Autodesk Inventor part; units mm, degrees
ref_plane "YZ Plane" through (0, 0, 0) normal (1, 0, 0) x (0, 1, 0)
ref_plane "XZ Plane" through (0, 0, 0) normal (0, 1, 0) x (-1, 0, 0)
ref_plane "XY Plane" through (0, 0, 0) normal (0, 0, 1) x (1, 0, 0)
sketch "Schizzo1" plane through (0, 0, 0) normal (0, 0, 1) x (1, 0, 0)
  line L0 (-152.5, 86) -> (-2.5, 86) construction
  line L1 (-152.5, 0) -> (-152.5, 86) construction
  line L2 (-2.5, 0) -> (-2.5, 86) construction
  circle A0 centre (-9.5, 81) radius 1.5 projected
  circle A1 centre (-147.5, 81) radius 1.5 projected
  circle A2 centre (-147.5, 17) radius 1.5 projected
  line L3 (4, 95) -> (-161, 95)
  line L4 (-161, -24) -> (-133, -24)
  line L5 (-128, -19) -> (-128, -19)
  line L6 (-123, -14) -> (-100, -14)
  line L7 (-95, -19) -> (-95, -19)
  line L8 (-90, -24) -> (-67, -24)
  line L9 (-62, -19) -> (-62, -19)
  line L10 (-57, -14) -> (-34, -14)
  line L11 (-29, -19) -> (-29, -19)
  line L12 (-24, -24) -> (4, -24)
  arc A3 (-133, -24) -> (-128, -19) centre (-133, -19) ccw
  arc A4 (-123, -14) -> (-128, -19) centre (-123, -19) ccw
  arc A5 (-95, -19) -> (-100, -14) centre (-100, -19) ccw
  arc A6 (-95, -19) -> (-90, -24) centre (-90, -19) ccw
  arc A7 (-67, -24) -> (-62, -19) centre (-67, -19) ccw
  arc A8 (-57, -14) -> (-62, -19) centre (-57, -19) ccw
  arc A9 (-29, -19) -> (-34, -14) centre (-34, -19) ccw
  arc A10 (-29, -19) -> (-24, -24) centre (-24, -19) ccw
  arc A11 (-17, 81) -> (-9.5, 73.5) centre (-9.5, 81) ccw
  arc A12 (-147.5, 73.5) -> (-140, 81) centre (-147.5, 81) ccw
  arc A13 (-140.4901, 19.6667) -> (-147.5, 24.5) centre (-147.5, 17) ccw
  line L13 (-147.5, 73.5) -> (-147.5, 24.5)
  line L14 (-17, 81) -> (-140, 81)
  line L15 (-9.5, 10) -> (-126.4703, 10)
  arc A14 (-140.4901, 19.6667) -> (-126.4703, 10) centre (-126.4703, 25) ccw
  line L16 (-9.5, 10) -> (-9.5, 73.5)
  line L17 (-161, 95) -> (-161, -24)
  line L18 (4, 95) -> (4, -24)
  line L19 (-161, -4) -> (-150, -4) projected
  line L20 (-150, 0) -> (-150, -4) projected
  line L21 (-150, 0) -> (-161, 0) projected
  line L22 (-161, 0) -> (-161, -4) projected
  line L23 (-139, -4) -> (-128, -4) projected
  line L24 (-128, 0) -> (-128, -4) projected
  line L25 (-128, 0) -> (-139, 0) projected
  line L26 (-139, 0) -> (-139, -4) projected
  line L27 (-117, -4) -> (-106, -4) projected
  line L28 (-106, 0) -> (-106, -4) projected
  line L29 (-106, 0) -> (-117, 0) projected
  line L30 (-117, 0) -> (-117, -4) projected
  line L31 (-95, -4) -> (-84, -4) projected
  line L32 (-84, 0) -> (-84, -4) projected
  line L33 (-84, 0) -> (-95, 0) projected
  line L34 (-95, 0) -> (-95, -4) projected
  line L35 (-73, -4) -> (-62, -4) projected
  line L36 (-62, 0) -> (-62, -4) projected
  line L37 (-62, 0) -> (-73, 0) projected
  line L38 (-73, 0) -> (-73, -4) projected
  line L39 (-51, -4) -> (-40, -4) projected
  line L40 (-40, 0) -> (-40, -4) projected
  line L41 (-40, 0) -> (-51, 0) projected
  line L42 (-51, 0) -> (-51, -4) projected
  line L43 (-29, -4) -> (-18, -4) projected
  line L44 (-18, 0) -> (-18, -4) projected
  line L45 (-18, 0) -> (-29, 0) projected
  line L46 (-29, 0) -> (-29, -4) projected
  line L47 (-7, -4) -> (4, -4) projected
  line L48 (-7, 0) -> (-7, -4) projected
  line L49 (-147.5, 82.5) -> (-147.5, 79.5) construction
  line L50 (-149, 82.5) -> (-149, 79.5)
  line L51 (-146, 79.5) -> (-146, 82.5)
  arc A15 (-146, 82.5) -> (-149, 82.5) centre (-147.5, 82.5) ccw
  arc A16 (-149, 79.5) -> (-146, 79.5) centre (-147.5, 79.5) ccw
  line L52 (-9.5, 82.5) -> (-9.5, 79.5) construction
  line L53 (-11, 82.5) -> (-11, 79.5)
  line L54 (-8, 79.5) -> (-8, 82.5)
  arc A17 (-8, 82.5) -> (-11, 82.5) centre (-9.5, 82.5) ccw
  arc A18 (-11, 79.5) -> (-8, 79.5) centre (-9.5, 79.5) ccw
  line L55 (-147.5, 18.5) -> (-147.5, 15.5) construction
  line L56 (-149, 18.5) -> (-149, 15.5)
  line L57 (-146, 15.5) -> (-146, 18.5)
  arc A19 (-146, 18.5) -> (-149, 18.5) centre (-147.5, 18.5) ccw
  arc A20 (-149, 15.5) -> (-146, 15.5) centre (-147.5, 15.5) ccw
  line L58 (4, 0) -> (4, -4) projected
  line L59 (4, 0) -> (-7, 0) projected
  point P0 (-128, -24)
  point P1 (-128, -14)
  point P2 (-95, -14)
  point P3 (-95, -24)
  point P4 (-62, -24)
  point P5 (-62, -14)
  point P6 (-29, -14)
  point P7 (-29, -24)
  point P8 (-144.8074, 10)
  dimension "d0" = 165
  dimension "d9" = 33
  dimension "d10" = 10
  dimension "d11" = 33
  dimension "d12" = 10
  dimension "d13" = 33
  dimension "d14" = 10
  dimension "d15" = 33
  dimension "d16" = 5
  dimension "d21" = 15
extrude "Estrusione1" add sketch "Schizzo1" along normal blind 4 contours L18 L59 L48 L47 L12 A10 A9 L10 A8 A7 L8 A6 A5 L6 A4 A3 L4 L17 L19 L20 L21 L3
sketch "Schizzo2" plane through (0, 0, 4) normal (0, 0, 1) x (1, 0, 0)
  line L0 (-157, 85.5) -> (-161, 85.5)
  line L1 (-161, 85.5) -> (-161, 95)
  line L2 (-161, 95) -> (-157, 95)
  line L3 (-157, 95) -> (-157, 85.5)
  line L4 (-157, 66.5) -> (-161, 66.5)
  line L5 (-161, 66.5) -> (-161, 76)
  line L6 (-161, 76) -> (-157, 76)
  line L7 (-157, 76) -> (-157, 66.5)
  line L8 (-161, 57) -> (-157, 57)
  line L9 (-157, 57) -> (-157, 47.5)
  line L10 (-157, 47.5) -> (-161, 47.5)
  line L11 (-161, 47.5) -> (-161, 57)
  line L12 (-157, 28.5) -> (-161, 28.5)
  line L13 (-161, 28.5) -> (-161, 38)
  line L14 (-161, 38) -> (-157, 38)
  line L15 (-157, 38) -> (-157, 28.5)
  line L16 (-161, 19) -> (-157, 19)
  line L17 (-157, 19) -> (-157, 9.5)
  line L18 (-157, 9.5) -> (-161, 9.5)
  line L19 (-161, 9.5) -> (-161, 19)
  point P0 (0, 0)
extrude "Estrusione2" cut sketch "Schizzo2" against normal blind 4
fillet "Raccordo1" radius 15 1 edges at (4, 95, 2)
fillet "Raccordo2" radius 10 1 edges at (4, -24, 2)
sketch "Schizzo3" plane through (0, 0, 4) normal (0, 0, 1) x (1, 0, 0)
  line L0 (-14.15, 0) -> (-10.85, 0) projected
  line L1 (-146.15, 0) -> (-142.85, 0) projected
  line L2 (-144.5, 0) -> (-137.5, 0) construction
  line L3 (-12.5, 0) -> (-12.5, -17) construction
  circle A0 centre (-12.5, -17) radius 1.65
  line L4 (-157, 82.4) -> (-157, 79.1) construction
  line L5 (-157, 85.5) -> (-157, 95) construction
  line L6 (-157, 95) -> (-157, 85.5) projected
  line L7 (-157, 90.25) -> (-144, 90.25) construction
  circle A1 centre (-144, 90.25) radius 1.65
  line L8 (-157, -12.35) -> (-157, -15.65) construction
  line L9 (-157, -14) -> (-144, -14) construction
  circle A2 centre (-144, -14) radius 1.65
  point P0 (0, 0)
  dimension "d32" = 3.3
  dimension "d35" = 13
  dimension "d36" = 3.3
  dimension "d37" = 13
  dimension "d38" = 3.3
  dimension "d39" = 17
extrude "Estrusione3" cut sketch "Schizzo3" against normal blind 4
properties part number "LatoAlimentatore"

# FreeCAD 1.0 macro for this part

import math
import FreeCAD as App
import Part
import Sketcher
Q = App.Units.Quantity


def edges_at(feature, points):
    """Names of the edges that pass closest to the given points."""
    edges = feature.Shape.Edges
    near = lambda p: min(range(len(edges)), key=lambda i: edges[i].distToShape(Part.Vertex(*p))[0])
    return sorted({f"Edge{near(p) + 1}" for p in points})


def add_polygon(sketch, points):
    """Adds a closed chain of lines whose ends are joined by coincident constraints."""
    first, n = sketch.GeometryCount, len(points)
    for a, b in zip(points, points[1:] + points[:1]):
        sketch.addGeometry(Part.LineSegment(App.Vector(*a, 0), App.Vector(*b, 0)), False)
    for i in range(n):
        sketch.addConstraint(Sketcher.Constraint("Coincident", first + i, 2, first + (i + 1) % n, 1))

doc = App.newDocument("Part")
body = doc.addObject("PartDesign::Body", "Body")

# Sketch on XY plane
sketch1 = doc.addObject("Sketcher::SketchObject", "Sketch")
body.addObject(sketch1)
sketch1.AttachmentSupport = (doc.XY_Plane, [""])
sketch1.MapMode = "FlatFace"
sketch1.addGeometry(Part.LineSegment(App.Vector(4, 0, 0), App.Vector(4, 95, 0)), False)  # 0
sketch1.addGeometry(Part.LineSegment(App.Vector(4, 95, 0), App.Vector(-161, 95, 0)), False)  # 1
sketch1.addGeometry(Part.LineSegment(App.Vector(-161, 95, 0), App.Vector(-161, 0, 0)), False)  # 2
sketch1.addGeometry(Part.LineSegment(App.Vector(-161, 0, 0), App.Vector(-150, 0, 0)), False)  # 3
sketch1.addGeometry(Part.LineSegment(App.Vector(-150, 0, 0), App.Vector(-150, -4, 0)), False)  # 4
sketch1.addGeometry(Part.LineSegment(App.Vector(-150, -4, 0), App.Vector(-161, -4, 0)), False)  # 5
sketch1.addGeometry(Part.LineSegment(App.Vector(-161, -4, 0), App.Vector(-161, -24, 0)), False)  # 6
sketch1.addGeometry(Part.LineSegment(App.Vector(-161, -24, 0), App.Vector(-133, -24, 0)), False)  # 7
sketch1.addGeometry(Part.ArcOfCircle(Part.Circle(App.Vector(-133, -19, 0), App.Vector(0, 0, 1), 5), math.radians(-90), math.radians(0)), False)  # 8
sketch1.addGeometry(Part.ArcOfCircle(Part.Circle(App.Vector(-123, -19, 0), App.Vector(0, 0, 1), 5), math.radians(90), math.radians(180)), False)  # 9
sketch1.addGeometry(Part.LineSegment(App.Vector(-123, -14, 0), App.Vector(-100, -14, 0)), False)  # 10
sketch1.addGeometry(Part.ArcOfCircle(Part.Circle(App.Vector(-100, -19, 0), App.Vector(0, 0, 1), 5), math.radians(0), math.radians(90)), False)  # 11
sketch1.addGeometry(Part.ArcOfCircle(Part.Circle(App.Vector(-90, -19, 0), App.Vector(0, 0, 1), 5), math.radians(180), math.radians(270)), False)  # 12
sketch1.addGeometry(Part.LineSegment(App.Vector(-90, -24, 0), App.Vector(-67, -24, 0)), False)  # 13
sketch1.addGeometry(Part.ArcOfCircle(Part.Circle(App.Vector(-67, -19, 0), App.Vector(0, 0, 1), 5), math.radians(-90), math.radians(0)), False)  # 14
sketch1.addGeometry(Part.ArcOfCircle(Part.Circle(App.Vector(-57, -19, 0), App.Vector(0, 0, 1), 5), math.radians(90), math.radians(180)), False)  # 15
sketch1.addGeometry(Part.LineSegment(App.Vector(-57, -14, 0), App.Vector(-34, -14, 0)), False)  # 16
sketch1.addGeometry(Part.ArcOfCircle(Part.Circle(App.Vector(-34, -19, 0), App.Vector(0, 0, 1), 5), math.radians(0), math.radians(90)), False)  # 17
sketch1.addGeometry(Part.ArcOfCircle(Part.Circle(App.Vector(-24, -19, 0), App.Vector(0, 0, 1), 5), math.radians(180), math.radians(270)), False)  # 18
sketch1.addGeometry(Part.LineSegment(App.Vector(-24, -24, 0), App.Vector(4, -24, 0)), False)  # 19
sketch1.addGeometry(Part.LineSegment(App.Vector(4, -24, 0), App.Vector(4, -4, 0)), False)  # 20
sketch1.addGeometry(Part.LineSegment(App.Vector(4, -4, 0), App.Vector(-7, -4, 0)), False)  # 21
sketch1.addGeometry(Part.LineSegment(App.Vector(-7, -4, 0), App.Vector(-7, 0, 0)), False)  # 22
sketch1.addGeometry(Part.LineSegment(App.Vector(-7, 0, 0), App.Vector(4, 0, 0)), False)  # 23
add_polygon(sketch1, [(-128, -4), (-139, -4), (-139, 0), (-128, 0)])  # lines 24-27
add_polygon(sketch1, [(-106, -4), (-117, -4), (-117, 0), (-106, 0)])  # lines 28-31
add_polygon(sketch1, [(-84, -4), (-95, -4), (-95, 0), (-84, 0)])  # lines 32-35
sketch1.addGeometry(Part.LineSegment(App.Vector(-146, 18.5, 0), App.Vector(-146, 15.5, 0)), False)  # 36
sketch1.addGeometry(Part.ArcOfCircle(Part.Circle(App.Vector(-147.5, 15.5, 0), App.Vector(0, 0, 1), 1.5), math.radians(180), math.radians(360)), False)  # 37
sketch1.addGeometry(Part.LineSegment(App.Vector(-149, 15.5, 0), App.Vector(-149, 18.5, 0)), False)  # 38
sketch1.addGeometry(Part.ArcOfCircle(Part.Circle(App.Vector(-147.5, 18.5, 0), App.Vector(0, 0, 1), 1.5), math.radians(0), math.radians(180)), False)  # 39
add_polygon(sketch1, [(-62, -4), (-73, -4), (-73, 0), (-62, 0)])  # lines 40-43
add_polygon(sketch1, [(-40, -4), (-51, -4), (-51, 0), (-40, 0)])  # lines 44-47
add_polygon(sketch1, [(-18, -4), (-29, -4), (-29, 0), (-18, 0)])  # lines 48-51
sketch1.addGeometry(Part.LineSegment(App.Vector(-146, 82.5, 0), App.Vector(-146, 79.5, 0)), False)  # 52
sketch1.addGeometry(Part.ArcOfCircle(Part.Circle(App.Vector(-147.5, 79.5, 0), App.Vector(0, 0, 1), 1.5), math.radians(180), math.radians(360)), False)  # 53
sketch1.addGeometry(Part.LineSegment(App.Vector(-149, 79.5, 0), App.Vector(-149, 82.5, 0)), False)  # 54
sketch1.addGeometry(Part.ArcOfCircle(Part.Circle(App.Vector(-147.5, 82.5, 0), App.Vector(0, 0, 1), 1.5), math.radians(0), math.radians(180)), False)  # 55
sketch1.addGeometry(Part.LineSegment(App.Vector(-140, 81, 0), App.Vector(-17, 81, 0)), False)  # 56
sketch1.addGeometry(Part.ArcOfCircle(Part.Circle(App.Vector(-9.5, 81, 0), App.Vector(0, 0, 1), 7.5), math.radians(180), math.radians(270)), False)  # 57
sketch1.addGeometry(Part.LineSegment(App.Vector(-9.5, 73.5, 0), App.Vector(-9.5, 10, 0)), False)  # 58
sketch1.addGeometry(Part.LineSegment(App.Vector(-9.5, 10, 0), App.Vector(-126.5, 10, 0)), False)  # 59
sketch1.addGeometry(Part.ArcOfCircle(Part.Circle(App.Vector(-126.5, 25, 0), App.Vector(0, 0, 1), 15), math.radians(-159), math.radians(-90)), False)  # 60
sketch1.addGeometry(Part.ArcOfCircle(Part.Circle(App.Vector(-147.5, 17, 0), App.Vector(0, 0, 1), 7.5), math.radians(21), math.radians(90)), False)  # 61
sketch1.addGeometry(Part.LineSegment(App.Vector(-147.5, 24.5, 0), App.Vector(-147.5, 73.5, 0)), False)  # 62
sketch1.addGeometry(Part.ArcOfCircle(Part.Circle(App.Vector(-147.5, 81, 0), App.Vector(0, 0, 1), 7.5), math.radians(-90), math.radians(0)), False)  # 63
sketch1.addGeometry(Part.LineSegment(App.Vector(-8, 82.5, 0), App.Vector(-8, 79.5, 0)), False)  # 64
sketch1.addGeometry(Part.ArcOfCircle(Part.Circle(App.Vector(-9.5, 79.5, 0), App.Vector(0, 0, 1), 1.5), math.radians(180), math.radians(360)), False)  # 65
sketch1.addGeometry(Part.LineSegment(App.Vector(-11, 79.5, 0), App.Vector(-11, 82.5, 0)), False)  # 66
sketch1.addGeometry(Part.ArcOfCircle(Part.Circle(App.Vector(-9.5, 82.5, 0), App.Vector(0, 0, 1), 1.5), math.radians(0), math.radians(180)), False)  # 67
sketch1.addConstraint(Sketcher.Constraint("Coincident", 0, 2, 1, 1))
sketch1.addConstraint(Sketcher.Constraint("Coincident", 1, 2, 2, 1))
sketch1.addConstraint(Sketcher.Constraint("Coincident", 2, 2, 3, 1))
sketch1.addConstraint(Sketcher.Constraint("Coincident", 3, 2, 4, 1))
sketch1.addConstraint(Sketcher.Constraint("Coincident", 4, 2, 5, 1))
sketch1.addConstraint(Sketcher.Constraint("Coincident", 5, 2, 6, 1))
sketch1.addConstraint(Sketcher.Constraint("Coincident", 6, 2, 7, 1))
sketch1.addConstraint(Sketcher.Constraint("Tangent", 7, 2, 8, 1))
sketch1.addConstraint(Sketcher.Constraint("Tangent", 8, 2, 9, 2))
sketch1.addConstraint(Sketcher.Constraint("Tangent", 9, 1, 10, 1))
sketch1.addConstraint(Sketcher.Constraint("Tangent", 10, 2, 11, 2))
sketch1.addConstraint(Sketcher.Constraint("Tangent", 11, 1, 12, 1))
sketch1.addConstraint(Sketcher.Constraint("Tangent", 12, 2, 13, 1))
sketch1.addConstraint(Sketcher.Constraint("Tangent", 13, 2, 14, 1))
sketch1.addConstraint(Sketcher.Constraint("Tangent", 14, 2, 15, 2))
sketch1.addConstraint(Sketcher.Constraint("Tangent", 15, 1, 16, 1))
sketch1.addConstraint(Sketcher.Constraint("Tangent", 16, 2, 17, 2))
sketch1.addConstraint(Sketcher.Constraint("Tangent", 17, 1, 18, 1))
sketch1.addConstraint(Sketcher.Constraint("Tangent", 18, 2, 19, 1))
sketch1.addConstraint(Sketcher.Constraint("Coincident", 19, 2, 20, 1))
sketch1.addConstraint(Sketcher.Constraint("Coincident", 20, 2, 21, 1))
sketch1.addConstraint(Sketcher.Constraint("Coincident", 21, 2, 22, 1))
sketch1.addConstraint(Sketcher.Constraint("Coincident", 22, 2, 23, 1))
sketch1.addConstraint(Sketcher.Constraint("Coincident", 23, 2, 0, 1))
sketch1.addConstraint(Sketcher.Constraint("Tangent", 36, 2, 37, 2))
sketch1.addConstraint(Sketcher.Constraint("Tangent", 37, 1, 38, 1))
sketch1.addConstraint(Sketcher.Constraint("Tangent", 38, 2, 39, 2))
sketch1.addConstraint(Sketcher.Constraint("Tangent", 39, 1, 36, 1))
sketch1.addConstraint(Sketcher.Constraint("Tangent", 52, 2, 53, 2))
sketch1.addConstraint(Sketcher.Constraint("Tangent", 53, 1, 54, 1))
sketch1.addConstraint(Sketcher.Constraint("Tangent", 54, 2, 55, 2))
sketch1.addConstraint(Sketcher.Constraint("Tangent", 55, 1, 52, 1))
sketch1.addConstraint(Sketcher.Constraint("Coincident", 56, 2, 57, 1))
sketch1.addConstraint(Sketcher.Constraint("Coincident", 57, 2, 58, 1))
sketch1.addConstraint(Sketcher.Constraint("Coincident", 58, 2, 59, 1))
sketch1.addConstraint(Sketcher.Constraint("Tangent", 59, 2, 60, 2))
sketch1.addConstraint(Sketcher.Constraint("Tangent", 60, 1, 61, 1))
sketch1.addConstraint(Sketcher.Constraint("Coincident", 61, 2, 62, 1))
sketch1.addConstraint(Sketcher.Constraint("Coincident", 62, 2, 63, 1))
sketch1.addConstraint(Sketcher.Constraint("Coincident", 63, 2, 56, 1))
sketch1.addConstraint(Sketcher.Constraint("Tangent", 64, 2, 65, 2))
sketch1.addConstraint(Sketcher.Constraint("Tangent", 65, 1, 66, 1))
sketch1.addConstraint(Sketcher.Constraint("Tangent", 66, 2, 67, 2))
sketch1.addConstraint(Sketcher.Constraint("Tangent", 67, 1, 64, 1))
sketch1.addConstraint(Sketcher.Constraint("Vertical", 0))
sketch1.addConstraint(Sketcher.Constraint("Horizontal", 1))
sketch1.addConstraint(Sketcher.Constraint("Vertical", 2))
sketch1.addConstraint(Sketcher.Constraint("Horizontal", 3))
sketch1.addConstraint(Sketcher.Constraint("Vertical", 4))
sketch1.addConstraint(Sketcher.Constraint("Horizontal", 5))
sketch1.addConstraint(Sketcher.Constraint("Vertical", 6))
sketch1.addConstraint(Sketcher.Constraint("Horizontal", 7))
sketch1.addConstraint(Sketcher.Constraint("Horizontal", 10))
sketch1.addConstraint(Sketcher.Constraint("Horizontal", 13))
sketch1.addConstraint(Sketcher.Constraint("Horizontal", 16))
sketch1.addConstraint(Sketcher.Constraint("Horizontal", 19))
sketch1.addConstraint(Sketcher.Constraint("Vertical", 20))
sketch1.addConstraint(Sketcher.Constraint("Horizontal", 21))
sketch1.addConstraint(Sketcher.Constraint("Vertical", 22))
sketch1.addConstraint(Sketcher.Constraint("Horizontal", 23))
sketch1.addConstraint(Sketcher.Constraint("Horizontal", 24))
sketch1.addConstraint(Sketcher.Constraint("Vertical", 25))
sketch1.addConstraint(Sketcher.Constraint("Horizontal", 26))
sketch1.addConstraint(Sketcher.Constraint("Vertical", 27))
sketch1.addConstraint(Sketcher.Constraint("Horizontal", 28))
sketch1.addConstraint(Sketcher.Constraint("Vertical", 29))
sketch1.addConstraint(Sketcher.Constraint("Horizontal", 30))
sketch1.addConstraint(Sketcher.Constraint("Vertical", 31))
sketch1.addConstraint(Sketcher.Constraint("Horizontal", 32))
sketch1.addConstraint(Sketcher.Constraint("Vertical", 33))
sketch1.addConstraint(Sketcher.Constraint("Horizontal", 34))
sketch1.addConstraint(Sketcher.Constraint("Vertical", 35))
sketch1.addConstraint(Sketcher.Constraint("Vertical", 36))
sketch1.addConstraint(Sketcher.Constraint("Vertical", 38))
sketch1.addConstraint(Sketcher.Constraint("Horizontal", 40))
sketch1.addConstraint(Sketcher.Constraint("Vertical", 41))
sketch1.addConstraint(Sketcher.Constraint("Horizontal", 42))
sketch1.addConstraint(Sketcher.Constraint("Vertical", 43))
sketch1.addConstraint(Sketcher.Constraint("Horizontal", 44))
sketch1.addConstraint(Sketcher.Constraint("Vertical", 45))
sketch1.addConstraint(Sketcher.Constraint("Horizontal", 46))
sketch1.addConstraint(Sketcher.Constraint("Vertical", 47))
sketch1.addConstraint(Sketcher.Constraint("Horizontal", 48))
sketch1.addConstraint(Sketcher.Constraint("Vertical", 49))
sketch1.addConstraint(Sketcher.Constraint("Horizontal", 50))
sketch1.addConstraint(Sketcher.Constraint("Vertical", 51))
sketch1.addConstraint(Sketcher.Constraint("Vertical", 52))
sketch1.addConstraint(Sketcher.Constraint("Vertical", 54))
sketch1.addConstraint(Sketcher.Constraint("Horizontal", 56))
sketch1.addConstraint(Sketcher.Constraint("Vertical", 58))
sketch1.addConstraint(Sketcher.Constraint("Horizontal", 59))
sketch1.addConstraint(Sketcher.Constraint("Vertical", 62))
sketch1.addConstraint(Sketcher.Constraint("Vertical", 64))
sketch1.addConstraint(Sketcher.Constraint("Vertical", 66))
sketch1.addConstraint(Sketcher.Constraint("Equal", 8, 9))
sketch1.addConstraint(Sketcher.Constraint("Equal", 9, 11))
sketch1.addConstraint(Sketcher.Constraint("Equal", 11, 12))
sketch1.addConstraint(Sketcher.Constraint("Equal", 12, 14))
sketch1.addConstraint(Sketcher.Constraint("Equal", 14, 15))
sketch1.addConstraint(Sketcher.Constraint("Equal", 15, 17))
sketch1.addConstraint(Sketcher.Constraint("Equal", 17, 18))
sketch1.addConstraint(Sketcher.Constraint("Equal", 39, 53))
sketch1.addConstraint(Sketcher.Constraint("Equal", 57, 61))
sketch1.addConstraint(Sketcher.Constraint("Equal", 61, 63))
sketch1.addConstraint(Sketcher.Constraint("Equal", 55, 65))
sketch1.addConstraint(Sketcher.Constraint("PointOnObject", 2, 2, -1))
sketch1.addConstraint(Sketcher.Constraint("PointOnObject", 22, 2, -1))
sketch1.addConstraint(Sketcher.Constraint("PointOnObject", 25, 2, -1))
sketch1.addConstraint(Sketcher.Constraint("PointOnObject", 29, 2, -1))
sketch1.addConstraint(Sketcher.Constraint("PointOnObject", 33, 2, -1))
sketch1.addConstraint(Sketcher.Constraint("PointOnObject", 41, 2, -1))
sketch1.addConstraint(Sketcher.Constraint("PointOnObject", 45, 2, -1))
sketch1.addConstraint(Sketcher.Constraint("PointOnObject", 49, 2, -1))
sketch1.addConstraint(Sketcher.Constraint("Horizontal", 8, 3, 9, 3))
sketch1.addConstraint(Sketcher.Constraint("Horizontal", 11, 3, 12, 3))
sketch1.addConstraint(Sketcher.Constraint("Horizontal", 14, 3, 15, 3))
sketch1.addConstraint(Sketcher.Constraint("Horizontal", 17, 3, 18, 3))
sketch1.addConstraint(Sketcher.Constraint("Horizontal", 57, 3, 63, 3))
sketch1.addConstraint(Sketcher.Constraint("Horizontal", 53, 3, 65, 3))
sketch1.addConstraint(Sketcher.Constraint("Horizontal", 55, 3, 67, 3))
sketch1.addConstraint(Sketcher.Constraint("Horizontal", 5, 2, 20, 2))
sketch1.addConstraint(Sketcher.Constraint("Horizontal", 21, 2, 24, 2))
sketch1.addConstraint(Sketcher.Constraint("Horizontal", 27, 2, 28, 2))
sketch1.addConstraint(Sketcher.Constraint("Horizontal", 31, 2, 32, 2))
sketch1.addConstraint(Sketcher.Constraint("Horizontal", 35, 2, 40, 2))
sketch1.addConstraint(Sketcher.Constraint("Horizontal", 43, 2, 44, 2))
sketch1.addConstraint(Sketcher.Constraint("Horizontal", 47, 2, 48, 2))
sketch1.addConstraint(Sketcher.Constraint("Horizontal", 63, 3, 56, 2))
sketch1.addConstraint(Sketcher.Constraint("Vertical", 39, 3, 53, 3))
sketch1.addConstraint(Sketcher.Constraint("Vertical", 55, 3, 61, 3))
sketch1.addConstraint(Sketcher.Constraint("Vertical", 61, 3, 63, 3))
sketch1.addConstraint(Sketcher.Constraint("Vertical", 57, 3, 65, 3))
sketch1.addConstraint(Sketcher.Constraint("Vertical", 2, 2, 5, 2))
sketch1.addConstraint(Sketcher.Constraint("Vertical", 0, 2, 19, 2))
sketch1.addConstraint(Sketcher.Constraint("Vertical", 8, 2, 26, 2))
sketch1.addConstraint(Sketcher.Constraint("Vertical", 11, 1, 32, 2))
sketch1.addConstraint(Sketcher.Constraint("Vertical", 14, 2, 42, 2))
sketch1.addConstraint(Sketcher.Constraint("Vertical", 17, 1, 48, 2))
sketch1.addConstraint(Sketcher.Constraint("Vertical", 67, 3, 57, 2))
sketch1.addConstraint(Sketcher.Constraint("Vertical", 63, 3, 61, 2))
sketch1.addConstraint(Sketcher.Constraint("Equal", 10, 13))
sketch1.addConstraint(Sketcher.Constraint("Equal", 13, 16))
sketch1.addConstraint(Sketcher.Constraint("Equal", 7, 19))
sketch1.addConstraint(Sketcher.Constraint("Equal", 5, 21))
sketch1.addConstraint(Sketcher.Constraint("Equal", 23, 24))
sketch1.addConstraint(Sketcher.Constraint("Equal", 26, 28))
sketch1.addConstraint(Sketcher.Constraint("Equal", 30, 32))
sketch1.addConstraint(Sketcher.Constraint("Equal", 34, 40))
sketch1.addConstraint(Sketcher.Constraint("Equal", 42, 44))
sketch1.addConstraint(Sketcher.Constraint("Equal", 46, 48))
sketch1.addConstraint(Sketcher.Constraint("Equal", 38, 52))
sketch1.addConstraint(Sketcher.Constraint("Radius", 8, Q("5 mm")))
sketch1.addConstraint(Sketcher.Constraint("Radius", 60, Q("15 mm")))
sketch1.addConstraint(Sketcher.Constraint("Radius", 57, Q("7.5 mm")))
sketch1.addConstraint(Sketcher.Constraint("DistanceX", 1, 2, 1, 1, Q("165 mm")))
sketch1.addConstraint(Sketcher.Constraint("DistanceY", -1, 1, 58, 2, Q("10 mm")))
sketch1.addConstraint(Sketcher.Constraint("Radius", 37, Q("1.5 mm")))
sketch1.addConstraint(Sketcher.Constraint("DistanceX", 3, 1, 3, 2, Q("11 mm")))
sketch1.addConstraint(Sketcher.Constraint("DistanceX", 7, 1, 7, 2, Q("28 mm")))
sketch1.addConstraint(Sketcher.Constraint("DistanceX", 56, 1, 56, 2, Q("123 mm")))
sketch1.addConstraint(Sketcher.Constraint("DistanceY", 0, 1, 0, 2, Q("95 mm")))
sketch1.addConstraint(Sketcher.Constraint("DistanceY", 4, 2, 4, 1, Q("4 mm")))
sketch1.addConstraint(Sketcher.Constraint("DistanceY", 6, 2, 6, 1, Q("20 mm")))
sketch1.addConstraint(Sketcher.Constraint("DistanceY", 36, 2, 36, 1, Q("3 mm")))
sketch1.addConstraint(Sketcher.Constraint("DistanceY", 62, 1, 62, 2, Q("49 mm")))
sketch1.addConstraint(Sketcher.Constraint("DistanceY", 58, 2, 58, 1, Q("63.5 mm")))
sketch1.addConstraint(Sketcher.Constraint("DistanceX", 8, 3, -1, 1, Q("133 mm")))
sketch1.addConstraint(Sketcher.Constraint("DistanceX", 28, 2, -1, 1, Q("117 mm")))
sketch1.addConstraint(Sketcher.Constraint("DistanceX", 36, 2, -1, 1, Q("146 mm")))
sketch1.addConstraint(Sketcher.Constraint("DistanceX", 44, 2, -1, 1, Q("51 mm")))
sketch1.addConstraint(Sketcher.Constraint("DistanceY", -1, 1, 37, 3, Q("15.5 mm")))
sketch1.addConstraint(Sketcher.Constraint("DistanceY", -1, 1, 53, 3, Q("79.5 mm")))
pad1 = doc.addObject("PartDesign::Pad", "Pad")
body.addObject(pad1)
pad1.Profile = sketch1
pad1.Length = 4

# Sketch on XY plane
sketch2 = doc.addObject("Sketcher::SketchObject", "Sketch001")
body.addObject(sketch2)
sketch2.AttachmentSupport = (doc.XY_Plane, [""])
sketch2.MapMode = "FlatFace"
sketch2.AttachmentOffset = App.Placement(App.Vector(0, 0, 4), App.Rotation())
add_polygon(sketch2, [(-161, 85.5), (-157, 85.5), (-157, 95), (-161, 95)])  # lines 0-3
add_polygon(sketch2, [(-161, 66.5), (-157, 66.5), (-157, 76), (-161, 76)])  # lines 4-7
add_polygon(sketch2, [(-157, 57), (-161, 57), (-161, 47.5), (-157, 47.5)])  # lines 8-11
add_polygon(sketch2, [(-161, 28.5), (-157, 28.5), (-157, 38), (-161, 38)])  # lines 12-15
add_polygon(sketch2, [(-157, 19), (-161, 19), (-161, 9.5), (-157, 9.5)])  # lines 16-19
sketch2.addConstraint(Sketcher.Constraint("Horizontal", 0))
sketch2.addConstraint(Sketcher.Constraint("Vertical", 1))
sketch2.addConstraint(Sketcher.Constraint("Horizontal", 2))
sketch2.addConstraint(Sketcher.Constraint("Vertical", 3))
sketch2.addConstraint(Sketcher.Constraint("Horizontal", 4))
sketch2.addConstraint(Sketcher.Constraint("Vertical", 5))
sketch2.addConstraint(Sketcher.Constraint("Horizontal", 6))
sketch2.addConstraint(Sketcher.Constraint("Vertical", 7))
sketch2.addConstraint(Sketcher.Constraint("Horizontal", 8))
sketch2.addConstraint(Sketcher.Constraint("Vertical", 9))
sketch2.addConstraint(Sketcher.Constraint("Horizontal", 10))
sketch2.addConstraint(Sketcher.Constraint("Vertical", 11))
sketch2.addConstraint(Sketcher.Constraint("Horizontal", 12))
sketch2.addConstraint(Sketcher.Constraint("Vertical", 13))
sketch2.addConstraint(Sketcher.Constraint("Horizontal", 14))
sketch2.addConstraint(Sketcher.Constraint("Vertical", 15))
sketch2.addConstraint(Sketcher.Constraint("Horizontal", 16))
sketch2.addConstraint(Sketcher.Constraint("Vertical", 17))
sketch2.addConstraint(Sketcher.Constraint("Horizontal", 18))
sketch2.addConstraint(Sketcher.Constraint("Vertical", 19))
sketch2.addConstraint(Sketcher.Constraint("Vertical", 1, 2, 4, 2))
sketch2.addConstraint(Sketcher.Constraint("Vertical", 3, 2, 6, 2))
sketch2.addConstraint(Sketcher.Constraint("Vertical", 7, 2, 8, 2))
sketch2.addConstraint(Sketcher.Constraint("Vertical", 5, 2, 10, 2))
sketch2.addConstraint(Sketcher.Constraint("Vertical", 11, 2, 12, 2))
sketch2.addConstraint(Sketcher.Constraint("Vertical", 9, 2, 14, 2))
sketch2.addConstraint(Sketcher.Constraint("Vertical", 15, 2, 16, 2))
sketch2.addConstraint(Sketcher.Constraint("Vertical", 13, 2, 18, 2))
sketch2.addConstraint(Sketcher.Constraint("Equal", 3, 5))
sketch2.addConstraint(Sketcher.Constraint("Equal", 7, 9))
sketch2.addConstraint(Sketcher.Constraint("Equal", 11, 13))
sketch2.addConstraint(Sketcher.Constraint("Equal", 15, 17))
sketch2.addConstraint(Sketcher.Constraint("DistanceX", 0, 1, 0, 2, Q("4 mm")))
sketch2.addConstraint(Sketcher.Constraint("DistanceY", 1, 1, 1, 2, Q("9.5 mm")))
sketch2.addConstraint(Sketcher.Constraint("DistanceX", 0, 2, -1, 1, Q("157 mm")))
sketch2.addConstraint(Sketcher.Constraint("DistanceY", -1, 1, 1, 2, Q("95 mm")))
sketch2.addConstraint(Sketcher.Constraint("DistanceY", -1, 1, 5, 2, Q("76 mm")))
sketch2.addConstraint(Sketcher.Constraint("DistanceY", -1, 1, 8, 2, Q("57 mm")))
sketch2.addConstraint(Sketcher.Constraint("DistanceY", -1, 1, 13, 2, Q("38 mm")))
sketch2.addConstraint(Sketcher.Constraint("DistanceY", -1, 1, 16, 2, Q("19 mm")))
pocket1 = doc.addObject("PartDesign::Pocket", "Pocket")
body.addObject(pocket1)
pocket1.Profile = sketch2
pocket1.Length = 4
doc.recompute()

fillet = doc.addObject("PartDesign::Fillet", "Fillet")
body.addObject(fillet)
fillet.Base = (pocket1, edges_at(pocket1, [(4, 95, 2)]))
fillet.Radius = 15
doc.recompute()

fillet2 = doc.addObject("PartDesign::Fillet", "Fillet001")
body.addObject(fillet2)
fillet2.Base = (fillet, edges_at(fillet, [(4, -24, 2)]))
fillet2.Radius = 10

# Sketch on XY plane
sketch3 = doc.addObject("Sketcher::SketchObject", "Sketch002")
body.addObject(sketch3)
sketch3.AttachmentSupport = (doc.XY_Plane, [""])
sketch3.MapMode = "FlatFace"
sketch3.AttachmentOffset = App.Placement(App.Vector(0, 0, 4), App.Rotation())
sketch3.addGeometry(Part.Circle(App.Vector(-12.5, -17, 0), App.Vector(0, 0, 1), 1.6), False)
sketch3.addGeometry(Part.Circle(App.Vector(-144, 90.2, 0), App.Vector(0, 0, 1), 1.6), False)
sketch3.addGeometry(Part.Circle(App.Vector(-144, -14, 0), App.Vector(0, 0, 1), 1.6), False)
sketch3.addConstraint(Sketcher.Constraint("Equal", 0, 1))
sketch3.addConstraint(Sketcher.Constraint("Equal", 1, 2))
sketch3.addConstraint(Sketcher.Constraint("Vertical", 1, 3, 2, 3))
sketch3.addConstraint(Sketcher.Constraint("Diameter", 0, Q("3.3 mm")))
sketch3.addConstraint(Sketcher.Constraint("DistanceY", 0, 3, -1, 1, Q("17 mm")))
sketch3.addConstraint(Sketcher.Constraint("DistanceX", 1, 3, -1, 1, Q("144 mm")))
sketch3.addConstraint(Sketcher.Constraint("DistanceY", 2, 3, -1, 1, Q("14 mm")))
sketch3.addConstraint(Sketcher.Constraint("DistanceX", 0, 3, -1, 1, Q("12.5 mm")))
sketch3.addConstraint(Sketcher.Constraint("DistanceY", -1, 1, 1, 3, Q("90.25 mm")))
pocket2 = doc.addObject("PartDesign::Pocket", "Pocket001")
body.addObject(pocket2)
pocket2.Profile = sketch3
pocket2.Length = 4

doc.recompute()
